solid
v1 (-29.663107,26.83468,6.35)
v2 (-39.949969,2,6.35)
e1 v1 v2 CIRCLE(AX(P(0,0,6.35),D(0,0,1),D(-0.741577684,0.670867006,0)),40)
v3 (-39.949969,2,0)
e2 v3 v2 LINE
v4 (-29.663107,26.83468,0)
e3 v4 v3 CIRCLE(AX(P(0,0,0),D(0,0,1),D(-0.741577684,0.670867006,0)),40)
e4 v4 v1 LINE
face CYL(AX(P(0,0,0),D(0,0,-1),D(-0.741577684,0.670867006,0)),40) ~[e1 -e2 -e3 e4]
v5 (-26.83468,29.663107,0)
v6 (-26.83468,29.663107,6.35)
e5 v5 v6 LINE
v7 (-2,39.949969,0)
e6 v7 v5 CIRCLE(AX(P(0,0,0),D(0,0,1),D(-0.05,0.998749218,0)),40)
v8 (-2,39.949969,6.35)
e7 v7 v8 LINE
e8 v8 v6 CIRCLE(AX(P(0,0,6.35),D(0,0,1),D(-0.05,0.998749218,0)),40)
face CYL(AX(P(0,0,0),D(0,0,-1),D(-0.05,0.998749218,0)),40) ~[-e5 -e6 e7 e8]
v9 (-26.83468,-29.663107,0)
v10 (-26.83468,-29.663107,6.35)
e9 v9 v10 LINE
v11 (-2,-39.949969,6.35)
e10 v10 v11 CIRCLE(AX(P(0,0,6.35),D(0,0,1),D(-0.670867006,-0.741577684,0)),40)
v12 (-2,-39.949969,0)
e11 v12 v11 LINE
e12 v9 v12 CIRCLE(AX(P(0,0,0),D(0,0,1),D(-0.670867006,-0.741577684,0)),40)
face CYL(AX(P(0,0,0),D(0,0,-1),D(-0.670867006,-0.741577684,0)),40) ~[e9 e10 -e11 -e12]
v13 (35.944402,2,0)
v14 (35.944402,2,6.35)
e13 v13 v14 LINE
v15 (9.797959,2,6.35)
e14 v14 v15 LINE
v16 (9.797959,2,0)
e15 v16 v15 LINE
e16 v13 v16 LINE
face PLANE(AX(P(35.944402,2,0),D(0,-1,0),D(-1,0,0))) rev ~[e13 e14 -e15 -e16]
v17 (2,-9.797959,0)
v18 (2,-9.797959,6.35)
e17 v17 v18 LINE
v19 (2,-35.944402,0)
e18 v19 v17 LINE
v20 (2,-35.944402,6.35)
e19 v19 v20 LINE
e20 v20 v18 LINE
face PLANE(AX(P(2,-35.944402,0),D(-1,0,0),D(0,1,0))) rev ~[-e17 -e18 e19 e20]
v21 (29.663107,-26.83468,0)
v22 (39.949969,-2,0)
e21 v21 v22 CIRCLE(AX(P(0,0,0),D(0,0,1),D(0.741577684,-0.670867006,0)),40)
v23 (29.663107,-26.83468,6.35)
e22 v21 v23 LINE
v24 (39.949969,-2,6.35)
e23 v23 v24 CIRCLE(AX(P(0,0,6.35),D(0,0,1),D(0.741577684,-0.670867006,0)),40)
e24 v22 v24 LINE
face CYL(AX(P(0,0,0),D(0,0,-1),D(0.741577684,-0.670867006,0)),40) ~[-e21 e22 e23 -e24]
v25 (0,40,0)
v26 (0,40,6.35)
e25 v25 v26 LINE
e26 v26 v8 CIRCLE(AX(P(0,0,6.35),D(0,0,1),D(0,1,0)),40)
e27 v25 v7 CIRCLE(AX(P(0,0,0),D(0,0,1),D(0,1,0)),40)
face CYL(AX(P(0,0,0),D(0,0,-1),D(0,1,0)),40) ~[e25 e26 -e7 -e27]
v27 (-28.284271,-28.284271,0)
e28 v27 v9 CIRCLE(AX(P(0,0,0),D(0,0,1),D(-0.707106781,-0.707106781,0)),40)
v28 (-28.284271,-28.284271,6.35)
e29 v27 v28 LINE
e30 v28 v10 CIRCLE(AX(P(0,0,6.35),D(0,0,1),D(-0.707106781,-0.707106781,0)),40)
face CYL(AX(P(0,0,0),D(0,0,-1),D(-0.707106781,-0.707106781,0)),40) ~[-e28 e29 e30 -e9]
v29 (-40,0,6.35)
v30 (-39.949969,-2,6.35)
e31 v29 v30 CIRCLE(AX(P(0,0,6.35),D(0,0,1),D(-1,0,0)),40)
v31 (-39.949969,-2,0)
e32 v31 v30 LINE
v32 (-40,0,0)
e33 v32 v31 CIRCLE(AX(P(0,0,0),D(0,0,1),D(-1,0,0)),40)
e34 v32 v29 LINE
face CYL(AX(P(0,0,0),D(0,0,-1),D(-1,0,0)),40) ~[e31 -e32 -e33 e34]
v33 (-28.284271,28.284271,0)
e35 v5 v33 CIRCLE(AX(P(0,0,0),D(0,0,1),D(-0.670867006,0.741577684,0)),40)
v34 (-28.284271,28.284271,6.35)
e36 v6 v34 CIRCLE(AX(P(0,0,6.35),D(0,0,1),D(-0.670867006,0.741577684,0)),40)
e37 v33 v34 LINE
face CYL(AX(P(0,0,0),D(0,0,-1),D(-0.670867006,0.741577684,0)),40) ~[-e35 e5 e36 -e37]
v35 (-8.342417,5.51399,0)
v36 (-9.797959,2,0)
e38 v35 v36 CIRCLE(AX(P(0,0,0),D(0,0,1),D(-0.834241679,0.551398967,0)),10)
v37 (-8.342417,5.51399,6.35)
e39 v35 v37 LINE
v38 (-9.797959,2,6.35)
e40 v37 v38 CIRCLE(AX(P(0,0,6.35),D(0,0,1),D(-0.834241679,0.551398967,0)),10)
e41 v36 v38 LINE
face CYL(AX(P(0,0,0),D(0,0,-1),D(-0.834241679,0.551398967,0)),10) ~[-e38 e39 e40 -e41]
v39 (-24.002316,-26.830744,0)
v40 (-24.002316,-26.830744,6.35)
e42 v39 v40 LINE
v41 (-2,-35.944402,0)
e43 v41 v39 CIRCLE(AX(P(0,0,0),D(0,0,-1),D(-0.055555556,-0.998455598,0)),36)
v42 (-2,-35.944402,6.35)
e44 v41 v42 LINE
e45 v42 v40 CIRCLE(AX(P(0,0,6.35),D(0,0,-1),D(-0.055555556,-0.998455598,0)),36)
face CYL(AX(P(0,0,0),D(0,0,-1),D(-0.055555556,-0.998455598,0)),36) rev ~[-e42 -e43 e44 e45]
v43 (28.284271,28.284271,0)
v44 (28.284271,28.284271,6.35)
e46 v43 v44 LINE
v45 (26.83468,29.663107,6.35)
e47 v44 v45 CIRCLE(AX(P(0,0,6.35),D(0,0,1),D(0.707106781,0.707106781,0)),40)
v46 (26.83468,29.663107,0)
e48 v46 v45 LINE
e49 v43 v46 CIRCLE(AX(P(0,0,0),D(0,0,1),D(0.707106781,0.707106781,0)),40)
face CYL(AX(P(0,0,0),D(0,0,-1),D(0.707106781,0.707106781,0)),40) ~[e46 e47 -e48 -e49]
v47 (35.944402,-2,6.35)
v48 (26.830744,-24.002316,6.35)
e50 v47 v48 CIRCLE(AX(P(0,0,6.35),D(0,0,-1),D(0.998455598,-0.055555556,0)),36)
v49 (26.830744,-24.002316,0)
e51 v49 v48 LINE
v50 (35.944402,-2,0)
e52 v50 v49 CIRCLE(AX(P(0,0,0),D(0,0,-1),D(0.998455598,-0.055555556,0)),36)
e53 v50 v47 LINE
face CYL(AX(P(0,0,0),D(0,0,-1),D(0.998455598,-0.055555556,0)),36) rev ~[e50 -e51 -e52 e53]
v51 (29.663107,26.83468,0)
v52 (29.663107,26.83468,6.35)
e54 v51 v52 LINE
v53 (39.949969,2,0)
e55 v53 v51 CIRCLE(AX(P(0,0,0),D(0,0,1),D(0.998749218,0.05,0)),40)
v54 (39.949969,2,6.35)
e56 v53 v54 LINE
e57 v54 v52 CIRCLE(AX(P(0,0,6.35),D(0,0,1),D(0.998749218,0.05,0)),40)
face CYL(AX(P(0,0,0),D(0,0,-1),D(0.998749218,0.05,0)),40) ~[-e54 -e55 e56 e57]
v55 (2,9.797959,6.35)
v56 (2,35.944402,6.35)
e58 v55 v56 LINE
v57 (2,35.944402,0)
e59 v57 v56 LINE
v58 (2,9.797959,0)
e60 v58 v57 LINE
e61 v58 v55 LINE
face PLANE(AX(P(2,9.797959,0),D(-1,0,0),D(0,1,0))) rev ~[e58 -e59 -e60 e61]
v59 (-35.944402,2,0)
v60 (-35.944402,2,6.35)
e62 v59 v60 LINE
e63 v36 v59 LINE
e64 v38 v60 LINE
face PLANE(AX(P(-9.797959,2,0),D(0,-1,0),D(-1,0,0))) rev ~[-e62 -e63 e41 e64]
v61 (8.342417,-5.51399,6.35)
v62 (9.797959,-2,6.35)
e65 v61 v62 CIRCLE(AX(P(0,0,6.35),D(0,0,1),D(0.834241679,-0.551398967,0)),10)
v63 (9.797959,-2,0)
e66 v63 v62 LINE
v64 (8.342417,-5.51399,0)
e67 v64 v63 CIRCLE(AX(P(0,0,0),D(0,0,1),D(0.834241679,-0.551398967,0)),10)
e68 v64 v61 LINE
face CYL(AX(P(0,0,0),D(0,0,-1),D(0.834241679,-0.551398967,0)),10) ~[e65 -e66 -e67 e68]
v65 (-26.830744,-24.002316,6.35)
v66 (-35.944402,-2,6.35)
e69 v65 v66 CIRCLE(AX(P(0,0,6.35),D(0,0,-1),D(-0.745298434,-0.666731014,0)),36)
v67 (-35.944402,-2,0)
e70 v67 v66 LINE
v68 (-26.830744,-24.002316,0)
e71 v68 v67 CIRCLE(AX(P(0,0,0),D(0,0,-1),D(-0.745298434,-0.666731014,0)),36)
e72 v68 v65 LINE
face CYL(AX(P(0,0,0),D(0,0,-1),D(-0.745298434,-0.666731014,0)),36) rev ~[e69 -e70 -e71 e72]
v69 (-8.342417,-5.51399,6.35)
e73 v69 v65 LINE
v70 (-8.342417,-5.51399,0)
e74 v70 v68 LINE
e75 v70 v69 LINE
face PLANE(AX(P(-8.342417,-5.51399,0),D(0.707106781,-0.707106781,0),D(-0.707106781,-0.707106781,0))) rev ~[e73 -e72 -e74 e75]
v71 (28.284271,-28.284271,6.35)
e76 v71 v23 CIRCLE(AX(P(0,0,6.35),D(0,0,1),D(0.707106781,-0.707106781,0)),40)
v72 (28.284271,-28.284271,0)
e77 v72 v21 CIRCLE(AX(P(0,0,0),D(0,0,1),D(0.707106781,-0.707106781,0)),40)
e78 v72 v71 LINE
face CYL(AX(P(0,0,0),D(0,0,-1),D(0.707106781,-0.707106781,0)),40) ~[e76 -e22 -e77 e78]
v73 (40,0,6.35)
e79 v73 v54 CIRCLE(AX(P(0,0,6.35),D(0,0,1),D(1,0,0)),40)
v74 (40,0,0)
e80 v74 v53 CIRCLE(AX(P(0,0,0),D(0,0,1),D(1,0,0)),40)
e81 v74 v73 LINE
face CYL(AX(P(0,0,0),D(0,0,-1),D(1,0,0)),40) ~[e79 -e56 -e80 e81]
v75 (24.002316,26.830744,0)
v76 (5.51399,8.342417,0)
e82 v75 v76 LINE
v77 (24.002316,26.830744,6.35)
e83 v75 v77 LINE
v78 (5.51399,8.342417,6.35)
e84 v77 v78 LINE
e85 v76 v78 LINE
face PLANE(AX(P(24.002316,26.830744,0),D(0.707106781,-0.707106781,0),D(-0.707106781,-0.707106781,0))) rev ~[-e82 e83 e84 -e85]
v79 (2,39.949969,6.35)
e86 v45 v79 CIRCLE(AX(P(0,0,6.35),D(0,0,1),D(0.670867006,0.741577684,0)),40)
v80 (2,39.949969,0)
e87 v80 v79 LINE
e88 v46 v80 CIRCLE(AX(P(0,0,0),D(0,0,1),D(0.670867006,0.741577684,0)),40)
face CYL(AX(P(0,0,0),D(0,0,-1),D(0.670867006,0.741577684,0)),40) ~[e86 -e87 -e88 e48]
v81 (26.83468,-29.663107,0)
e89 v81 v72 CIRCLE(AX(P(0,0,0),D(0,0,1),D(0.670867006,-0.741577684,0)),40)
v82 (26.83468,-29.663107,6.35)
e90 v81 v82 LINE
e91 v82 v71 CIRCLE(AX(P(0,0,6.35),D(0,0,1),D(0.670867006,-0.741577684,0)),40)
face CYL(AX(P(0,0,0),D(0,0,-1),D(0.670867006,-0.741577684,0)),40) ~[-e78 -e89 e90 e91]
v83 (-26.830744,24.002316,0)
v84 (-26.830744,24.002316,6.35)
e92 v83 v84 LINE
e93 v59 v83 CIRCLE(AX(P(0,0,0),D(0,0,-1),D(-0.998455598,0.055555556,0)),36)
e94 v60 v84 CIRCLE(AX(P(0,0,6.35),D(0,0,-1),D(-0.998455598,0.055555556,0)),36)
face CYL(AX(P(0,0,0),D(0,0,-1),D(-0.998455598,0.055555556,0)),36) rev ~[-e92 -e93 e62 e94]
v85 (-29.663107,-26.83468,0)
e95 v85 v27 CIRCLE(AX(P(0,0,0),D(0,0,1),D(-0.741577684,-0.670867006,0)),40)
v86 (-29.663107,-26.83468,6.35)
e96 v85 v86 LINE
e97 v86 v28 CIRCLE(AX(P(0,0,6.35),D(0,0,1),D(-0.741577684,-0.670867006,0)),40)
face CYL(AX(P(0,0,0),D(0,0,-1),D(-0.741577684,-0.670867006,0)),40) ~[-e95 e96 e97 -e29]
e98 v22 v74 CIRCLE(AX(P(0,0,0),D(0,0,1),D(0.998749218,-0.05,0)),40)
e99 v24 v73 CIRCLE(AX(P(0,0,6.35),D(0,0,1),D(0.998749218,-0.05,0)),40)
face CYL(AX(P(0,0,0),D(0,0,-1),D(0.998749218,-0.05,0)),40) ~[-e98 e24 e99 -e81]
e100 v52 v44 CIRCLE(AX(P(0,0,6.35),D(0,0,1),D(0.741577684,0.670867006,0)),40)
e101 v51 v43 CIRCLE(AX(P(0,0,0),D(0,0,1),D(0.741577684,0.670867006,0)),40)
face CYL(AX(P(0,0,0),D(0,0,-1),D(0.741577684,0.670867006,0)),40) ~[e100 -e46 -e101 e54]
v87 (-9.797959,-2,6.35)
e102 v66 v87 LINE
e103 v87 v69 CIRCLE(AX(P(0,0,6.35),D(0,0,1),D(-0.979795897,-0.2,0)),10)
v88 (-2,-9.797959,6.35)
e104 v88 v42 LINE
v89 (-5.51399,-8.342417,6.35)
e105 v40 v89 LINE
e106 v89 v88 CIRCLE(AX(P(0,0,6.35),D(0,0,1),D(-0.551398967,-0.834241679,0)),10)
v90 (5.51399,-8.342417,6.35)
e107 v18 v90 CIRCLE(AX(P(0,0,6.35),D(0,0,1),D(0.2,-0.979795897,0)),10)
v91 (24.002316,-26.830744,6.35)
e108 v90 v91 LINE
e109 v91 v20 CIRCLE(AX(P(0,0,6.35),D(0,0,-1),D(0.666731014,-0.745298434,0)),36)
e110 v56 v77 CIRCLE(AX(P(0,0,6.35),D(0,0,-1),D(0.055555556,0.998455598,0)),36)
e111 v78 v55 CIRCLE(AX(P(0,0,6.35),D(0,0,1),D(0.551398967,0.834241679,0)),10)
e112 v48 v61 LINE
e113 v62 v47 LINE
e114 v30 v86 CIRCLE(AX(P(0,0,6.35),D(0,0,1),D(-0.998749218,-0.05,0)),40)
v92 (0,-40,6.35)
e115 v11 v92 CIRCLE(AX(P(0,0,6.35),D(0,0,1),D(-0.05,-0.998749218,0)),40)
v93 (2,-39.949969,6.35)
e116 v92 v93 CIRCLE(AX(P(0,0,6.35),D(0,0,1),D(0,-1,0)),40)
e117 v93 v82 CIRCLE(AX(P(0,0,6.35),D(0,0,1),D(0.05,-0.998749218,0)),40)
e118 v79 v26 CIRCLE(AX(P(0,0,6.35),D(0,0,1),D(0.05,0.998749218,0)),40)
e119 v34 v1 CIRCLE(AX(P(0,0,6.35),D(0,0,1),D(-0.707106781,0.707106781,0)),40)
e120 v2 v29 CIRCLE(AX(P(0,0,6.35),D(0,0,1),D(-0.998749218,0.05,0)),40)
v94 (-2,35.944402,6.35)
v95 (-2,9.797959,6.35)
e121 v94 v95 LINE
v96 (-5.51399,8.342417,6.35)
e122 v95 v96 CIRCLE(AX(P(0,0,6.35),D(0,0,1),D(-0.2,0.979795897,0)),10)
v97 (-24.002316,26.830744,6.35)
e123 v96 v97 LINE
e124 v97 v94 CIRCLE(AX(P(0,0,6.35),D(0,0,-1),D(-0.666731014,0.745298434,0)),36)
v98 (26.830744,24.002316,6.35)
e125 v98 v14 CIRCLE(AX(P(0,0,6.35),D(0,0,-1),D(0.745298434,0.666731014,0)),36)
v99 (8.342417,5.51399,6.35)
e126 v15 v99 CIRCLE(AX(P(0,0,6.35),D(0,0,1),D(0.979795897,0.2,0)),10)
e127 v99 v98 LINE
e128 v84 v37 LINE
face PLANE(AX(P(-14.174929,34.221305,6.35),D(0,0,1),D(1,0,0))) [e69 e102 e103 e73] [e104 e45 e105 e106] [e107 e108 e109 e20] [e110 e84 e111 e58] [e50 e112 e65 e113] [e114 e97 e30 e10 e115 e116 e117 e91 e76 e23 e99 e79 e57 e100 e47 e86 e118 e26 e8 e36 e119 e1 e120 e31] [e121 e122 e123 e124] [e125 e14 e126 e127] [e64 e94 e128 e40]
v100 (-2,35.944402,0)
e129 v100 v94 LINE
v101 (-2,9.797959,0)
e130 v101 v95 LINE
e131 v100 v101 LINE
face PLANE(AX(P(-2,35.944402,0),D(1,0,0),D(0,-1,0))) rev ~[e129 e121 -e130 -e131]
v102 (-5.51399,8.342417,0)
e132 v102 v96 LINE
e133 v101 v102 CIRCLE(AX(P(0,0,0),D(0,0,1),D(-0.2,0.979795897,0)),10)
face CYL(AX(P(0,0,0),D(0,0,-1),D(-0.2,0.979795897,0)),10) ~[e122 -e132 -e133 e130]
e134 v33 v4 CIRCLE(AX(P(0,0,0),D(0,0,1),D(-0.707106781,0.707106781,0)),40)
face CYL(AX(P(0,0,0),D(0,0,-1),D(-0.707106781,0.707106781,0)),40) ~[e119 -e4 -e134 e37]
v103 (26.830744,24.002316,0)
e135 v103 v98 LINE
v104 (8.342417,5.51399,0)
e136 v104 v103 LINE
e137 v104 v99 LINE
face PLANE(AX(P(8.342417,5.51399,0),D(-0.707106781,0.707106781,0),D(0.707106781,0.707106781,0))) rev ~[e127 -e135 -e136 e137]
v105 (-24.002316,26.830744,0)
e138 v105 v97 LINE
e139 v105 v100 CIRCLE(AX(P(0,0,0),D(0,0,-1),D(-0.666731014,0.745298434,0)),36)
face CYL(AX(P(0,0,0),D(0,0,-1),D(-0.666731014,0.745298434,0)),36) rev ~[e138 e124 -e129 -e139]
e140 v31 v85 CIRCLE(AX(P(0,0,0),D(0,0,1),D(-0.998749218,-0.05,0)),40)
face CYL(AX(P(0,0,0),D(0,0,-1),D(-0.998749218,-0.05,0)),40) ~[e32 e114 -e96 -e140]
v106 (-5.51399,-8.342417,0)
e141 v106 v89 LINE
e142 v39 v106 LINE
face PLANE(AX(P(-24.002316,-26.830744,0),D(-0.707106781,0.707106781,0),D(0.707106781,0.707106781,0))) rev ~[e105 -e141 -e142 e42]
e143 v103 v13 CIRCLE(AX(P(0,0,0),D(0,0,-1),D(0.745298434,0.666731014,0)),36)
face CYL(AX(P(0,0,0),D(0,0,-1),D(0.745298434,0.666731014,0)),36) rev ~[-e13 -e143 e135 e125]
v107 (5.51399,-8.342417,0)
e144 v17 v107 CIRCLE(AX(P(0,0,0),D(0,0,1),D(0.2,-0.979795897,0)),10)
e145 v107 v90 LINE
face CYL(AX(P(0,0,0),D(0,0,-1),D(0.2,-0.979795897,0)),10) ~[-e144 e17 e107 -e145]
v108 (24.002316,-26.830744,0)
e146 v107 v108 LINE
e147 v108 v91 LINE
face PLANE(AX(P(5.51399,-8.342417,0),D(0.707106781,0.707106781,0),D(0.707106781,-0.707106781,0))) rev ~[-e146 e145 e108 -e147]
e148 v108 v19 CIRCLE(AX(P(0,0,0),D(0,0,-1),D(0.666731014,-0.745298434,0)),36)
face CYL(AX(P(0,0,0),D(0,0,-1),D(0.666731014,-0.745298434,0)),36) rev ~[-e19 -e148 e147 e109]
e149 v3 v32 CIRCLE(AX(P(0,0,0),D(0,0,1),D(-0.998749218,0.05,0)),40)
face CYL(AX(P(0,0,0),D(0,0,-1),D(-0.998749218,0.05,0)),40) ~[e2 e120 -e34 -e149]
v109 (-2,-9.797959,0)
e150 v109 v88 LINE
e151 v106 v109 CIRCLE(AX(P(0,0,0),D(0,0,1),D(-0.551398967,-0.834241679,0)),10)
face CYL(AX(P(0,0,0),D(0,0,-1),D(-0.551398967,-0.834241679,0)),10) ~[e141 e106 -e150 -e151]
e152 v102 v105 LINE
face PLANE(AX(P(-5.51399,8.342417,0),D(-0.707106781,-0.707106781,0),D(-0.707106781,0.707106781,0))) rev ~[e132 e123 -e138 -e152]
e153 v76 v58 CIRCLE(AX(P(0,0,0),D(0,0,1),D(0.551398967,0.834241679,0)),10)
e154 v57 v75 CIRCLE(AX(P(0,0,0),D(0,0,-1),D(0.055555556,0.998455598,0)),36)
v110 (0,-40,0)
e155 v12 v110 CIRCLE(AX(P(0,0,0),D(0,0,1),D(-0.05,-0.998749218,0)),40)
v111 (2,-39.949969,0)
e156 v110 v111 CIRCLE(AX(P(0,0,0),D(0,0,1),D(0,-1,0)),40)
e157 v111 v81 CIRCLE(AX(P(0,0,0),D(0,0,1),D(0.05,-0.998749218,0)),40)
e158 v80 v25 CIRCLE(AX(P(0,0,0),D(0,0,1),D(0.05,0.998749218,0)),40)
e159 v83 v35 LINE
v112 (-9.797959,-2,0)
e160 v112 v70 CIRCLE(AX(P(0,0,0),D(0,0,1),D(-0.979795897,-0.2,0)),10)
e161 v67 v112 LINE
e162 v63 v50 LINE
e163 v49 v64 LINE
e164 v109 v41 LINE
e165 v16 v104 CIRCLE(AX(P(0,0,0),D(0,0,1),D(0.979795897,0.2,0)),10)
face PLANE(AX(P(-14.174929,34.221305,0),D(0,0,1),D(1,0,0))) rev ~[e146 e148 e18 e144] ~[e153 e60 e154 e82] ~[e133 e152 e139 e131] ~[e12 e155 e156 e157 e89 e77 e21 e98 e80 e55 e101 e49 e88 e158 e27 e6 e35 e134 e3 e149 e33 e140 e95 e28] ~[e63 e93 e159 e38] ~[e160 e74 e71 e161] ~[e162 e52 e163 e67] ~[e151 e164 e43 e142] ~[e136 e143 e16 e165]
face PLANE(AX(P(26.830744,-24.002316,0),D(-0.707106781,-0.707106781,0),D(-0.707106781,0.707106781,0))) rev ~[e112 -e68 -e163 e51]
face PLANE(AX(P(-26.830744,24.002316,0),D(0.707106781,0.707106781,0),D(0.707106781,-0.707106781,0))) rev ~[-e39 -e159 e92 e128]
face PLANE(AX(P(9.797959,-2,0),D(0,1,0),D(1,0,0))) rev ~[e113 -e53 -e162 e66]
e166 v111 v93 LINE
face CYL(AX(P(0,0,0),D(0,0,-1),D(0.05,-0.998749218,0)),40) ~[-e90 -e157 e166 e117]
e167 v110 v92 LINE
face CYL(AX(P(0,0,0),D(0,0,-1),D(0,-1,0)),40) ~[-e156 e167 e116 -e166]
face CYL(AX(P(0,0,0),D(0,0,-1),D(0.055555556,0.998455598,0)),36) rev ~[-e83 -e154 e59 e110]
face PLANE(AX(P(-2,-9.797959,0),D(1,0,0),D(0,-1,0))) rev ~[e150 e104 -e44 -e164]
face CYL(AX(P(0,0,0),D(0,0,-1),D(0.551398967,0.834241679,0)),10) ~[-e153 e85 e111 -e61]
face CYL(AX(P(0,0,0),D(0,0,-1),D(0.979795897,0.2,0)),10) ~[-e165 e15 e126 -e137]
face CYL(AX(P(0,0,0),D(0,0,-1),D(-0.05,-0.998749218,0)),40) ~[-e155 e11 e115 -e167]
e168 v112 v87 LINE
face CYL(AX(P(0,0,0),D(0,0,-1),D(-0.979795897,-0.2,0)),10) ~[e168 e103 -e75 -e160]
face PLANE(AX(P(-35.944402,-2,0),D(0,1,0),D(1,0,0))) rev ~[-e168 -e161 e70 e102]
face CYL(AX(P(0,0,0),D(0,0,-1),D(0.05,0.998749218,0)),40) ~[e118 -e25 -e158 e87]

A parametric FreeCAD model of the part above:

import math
import FreeCAD as App
import Part
import Sketcher

doc = App.newDocument("Part")
params = doc.addObject("Spreadsheet::Sheet", "Params")
for row, (alias, value) in enumerate([
    ("sketch1_radius", "40 mm"),
    ("sketch1_radius2", "10 mm"),
    ("sketch1_radius3", "36 mm"),
    ("pad1_length", "6.35 mm"),
], start=1):
    params.set(f"A{row}", alias)
    params.set(f"B{row}", "=" + value)
    params.setAlias(f"B{row}", alias)

body = doc.addObject("PartDesign::Body", "Body")

sketch1 = body.newObject("Sketcher::SketchObject", "Sketch")
sketch1.AttachmentSupport = (doc.getObject("XY_Plane"), [""])
sketch1.MapMode = "FlatFace"
sketch1.addGeometry([
    Part.ArcOfCircle(Part.Circle(App.Vector(0, 0, 0), App.Vector(0, 0, 1), 40), math.radians(138), math.radians(177)),
    Part.ArcOfCircle(Part.Circle(App.Vector(0, 0, 0), App.Vector(0, 0, 1), 40), math.radians(177.13), math.radians(180)),
    Part.ArcOfCircle(Part.Circle(App.Vector(0, 0, 0), App.Vector(0, 0, 1), 40), math.radians(-180), math.radians(-177.13)),
    Part.ArcOfCircle(Part.Circle(App.Vector(0, 0, 0), App.Vector(0, 0, 1), 40), math.radians(-177), math.radians(-138)),
    Part.ArcOfCircle(Part.Circle(App.Vector(0, 0, 0), App.Vector(0, 0, 1), 40), math.radians(-137.87), math.radians(-135)),
    Part.ArcOfCircle(Part.Circle(App.Vector(0, 0, 0), App.Vector(0, 0, 1), 40), math.radians(-135), math.radians(-132.13)),
    Part.ArcOfCircle(Part.Circle(App.Vector(0, 0, 0), App.Vector(0, 0, 1), 40), math.radians(-132), math.radians(-93)),
    Part.ArcOfCircle(Part.Circle(App.Vector(0, 0, 0), App.Vector(0, 0, 1), 40), math.radians(-92.87), math.radians(-90)),
    Part.ArcOfCircle(Part.Circle(App.Vector(0, 0, 0), App.Vector(0, 0, 1), 40), math.radians(-90), math.radians(-87.13)),
    Part.ArcOfCircle(Part.Circle(App.Vector(0, 0, 0), App.Vector(0, 0, 1), 40), math.radians(-87), math.radians(-48)),
    Part.ArcOfCircle(Part.Circle(App.Vector(0, 0, 0), App.Vector(0, 0, 1), 40), math.radians(-47.87), math.radians(-45)),
    Part.ArcOfCircle(Part.Circle(App.Vector(0, 0, 0), App.Vector(0, 0, 1), 40), math.radians(-45), math.radians(-42.13)),
    Part.ArcOfCircle(Part.Circle(App.Vector(0, 0, 0), App.Vector(0, 0, 1), 40), math.radians(-42), math.radians(-3)),
    Part.ArcOfCircle(Part.Circle(App.Vector(0, 0, 0), App.Vector(0, 0, 1), 40), math.radians(-2.87), math.radians(0)),
    Part.ArcOfCircle(Part.Circle(App.Vector(0, 0, 0), App.Vector(0, 0, 1), 40), math.radians(0), math.radians(2.87)),
    Part.ArcOfCircle(Part.Circle(App.Vector(0, 0, 0), App.Vector(0, 0, 1), 40), math.radians(3), math.radians(42)),
    Part.ArcOfCircle(Part.Circle(App.Vector(0, 0, 0), App.Vector(0, 0, 1), 40), math.radians(42.13), math.radians(45)),
    Part.ArcOfCircle(Part.Circle(App.Vector(0, 0, 0), App.Vector(0, 0, 1), 40), math.radians(45), math.radians(47.87)),
    Part.ArcOfCircle(Part.Circle(App.Vector(0, 0, 0), App.Vector(0, 0, 1), 40), math.radians(48), math.radians(87)),
    Part.ArcOfCircle(Part.Circle(App.Vector(0, 0, 0), App.Vector(0, 0, 1), 40), math.radians(87.13), math.radians(90)),
    Part.ArcOfCircle(Part.Circle(App.Vector(0, 0, 0), App.Vector(0, 0, 1), 40), math.radians(90), math.radians(92.87)),
    Part.ArcOfCircle(Part.Circle(App.Vector(0, 0, 0), App.Vector(0, 0, 1), 40), math.radians(93), math.radians(132)),
    Part.ArcOfCircle(Part.Circle(App.Vector(0, 0, 0), App.Vector(0, 0, 1), 40), math.radians(132.13), math.radians(135)),
    Part.ArcOfCircle(Part.Circle(App.Vector(0, 0, 0), App.Vector(0, 0, 1), 40), math.radians(135), math.radians(137.87)),
    Part.LineSegment(App.Vector(-24, -26.8, 0), App.Vector(-5.5, -8.3, 0)),
    Part.ArcOfCircle(Part.Circle(App.Vector(0, 0, 0), App.Vector(0, 0, 1), 10), math.radians(-123), math.radians(-102)),
    Part.LineSegment(App.Vector(-2, -9.8, 0), App.Vector(-2, -35.9, 0)),
    Part.ArcOfCircle(Part.Circle(App.Vector(0, 0, 0), App.Vector(0, 0, 1), 36), math.radians(-132), math.radians(-93)),
    Part.LineSegment(App.Vector(-35.9, -2, 0), App.Vector(-9.8, -2, 0)),
    Part.ArcOfCircle(Part.Circle(App.Vector(0, 0, 0), App.Vector(0, 0, 1), 10), math.radians(-168), math.radians(-147)),
    Part.LineSegment(App.Vector(-8.3, -5.5, 0), App.Vector(-26.8, -24, 0)),
    Part.ArcOfCircle(Part.Circle(App.Vector(0, 0, 0), App.Vector(0, 0, 1), 36), math.radians(-177), math.radians(-138)),
    Part.LineSegment(App.Vector(2, -35.9, 0), App.Vector(2, -9.8, 0)),
    Part.ArcOfCircle(Part.Circle(App.Vector(0, 0, 0), App.Vector(0, 0, 1), 10), math.radians(-78), math.radians(-57)),
    Part.LineSegment(App.Vector(5.5, -8.3, 0), App.Vector(24, -26.8, 0)),
    Part.ArcOfCircle(Part.Circle(App.Vector(0, 0, 0), App.Vector(0, 0, 1), 36), math.radians(-87), math.radians(-48)),
    Part.LineSegment(App.Vector(26.8, -24, 0), App.Vector(8.3, -5.5, 0)),
    Part.ArcOfCircle(Part.Circle(App.Vector(0, 0, 0), App.Vector(0, 0, 1), 10), math.radians(-33), math.radians(-12)),
    Part.LineSegment(App.Vector(9.8, -2, 0), App.Vector(35.9, -2, 0)),
    Part.ArcOfCircle(Part.Circle(App.Vector(0, 0, 0), App.Vector(0, 0, 1), 36), math.radians(-42), math.radians(-3)),
    Part.LineSegment(App.Vector(-26.8, 24, 0), App.Vector(-8.3, 5.5, 0)),
    Part.ArcOfCircle(Part.Circle(App.Vector(0, 0, 0), App.Vector(0, 0, 1), 10), math.radians(147), math.radians(168)),
    Part.LineSegment(App.Vector(-9.8, 2, 0), App.Vector(-35.9, 2, 0)),
    Part.ArcOfCircle(Part.Circle(App.Vector(0, 0, 0), App.Vector(0, 0, 1), 36), math.radians(138), math.radians(177)),
    Part.ArcOfCircle(Part.Circle(App.Vector(0, 0, 0), App.Vector(0, 0, 1), 10), math.radians(102), math.radians(123)),
    Part.LineSegment(App.Vector(-5.5, 8.3, 0), App.Vector(-24, 26.8, 0)),
    Part.ArcOfCircle(Part.Circle(App.Vector(0, 0, 0), App.Vector(0, 0, 1), 36), math.radians(93), math.radians(132)),
    Part.LineSegment(App.Vector(-2, 35.9, 0), App.Vector(-2, 9.8, 0)),
    Part.ArcOfCircle(Part.Circle(App.Vector(0, 0, 0), App.Vector(0, 0, 1), 10), math.radians(12), math.radians(33)),
    Part.LineSegment(App.Vector(8.3, 5.5, 0), App.Vector(26.8, 24, 0)),
    Part.ArcOfCircle(Part.Circle(App.Vector(0, 0, 0), App.Vector(0, 0, 1), 36), math.radians(3), math.radians(42)),
    Part.LineSegment(App.Vector(35.9, 2, 0), App.Vector(9.8, 2, 0)),
    Part.ArcOfCircle(Part.Circle(App.Vector(0, 0, 0), App.Vector(0, 0, 1), 10), math.radians(57), math.radians(78)),
    Part.LineSegment(App.Vector(2, 9.8, 0), App.Vector(2, 35.9, 0)),
    Part.ArcOfCircle(Part.Circle(App.Vector(0, 0, 0), App.Vector(0, 0, 1), 36), math.radians(48), math.radians(87)),
    Part.LineSegment(App.Vector(24, 26.8, 0), App.Vector(5.5, 8.3, 0)),
], False)
sketch1.addConstraint([
    Sketcher.Constraint("Tangent", 0, 2, 1, 1),
    Sketcher.Constraint("Tangent", 1, 2, 2, 1),
    Sketcher.Constraint("Tangent", 2, 2, 3, 1),
    Sketcher.Constraint("Tangent", 3, 2, 4, 1),
    Sketcher.Constraint("Tangent", 4, 2, 5, 1),
    Sketcher.Constraint("Tangent", 5, 2, 6, 1),
    Sketcher.Constraint("Tangent", 6, 2, 7, 1),
    Sketcher.Constraint("Tangent", 7, 2, 8, 1),
    Sketcher.Constraint("Tangent", 8, 2, 9, 1),
    Sketcher.Constraint("Tangent", 9, 2, 10, 1),
    Sketcher.Constraint("Tangent", 10, 2, 11, 1),
    Sketcher.Constraint("Tangent", 11, 2, 12, 1),
    Sketcher.Constraint("Tangent", 12, 2, 13, 1),
    Sketcher.Constraint("Tangent", 13, 2, 14, 1),
    Sketcher.Constraint("Tangent", 14, 2, 15, 1),
    Sketcher.Constraint("Tangent", 15, 2, 16, 1),
    Sketcher.Constraint("Tangent", 16, 2, 17, 1),
    Sketcher.Constraint("Tangent", 17, 2, 18, 1),
    Sketcher.Constraint("Tangent", 18, 2, 19, 1),
    Sketcher.Constraint("Tangent", 19, 2, 20, 1),
    Sketcher.Constraint("Tangent", 20, 2, 21, 1),
    Sketcher.Constraint("Tangent", 21, 2, 22, 1),
    Sketcher.Constraint("Tangent", 22, 2, 23, 1),
    Sketcher.Constraint("Tangent", 23, 2, 0, 1),
    Sketcher.Constraint("Coincident", 24, 2, 25, 1),
    Sketcher.Constraint("Coincident", 25, 2, 26, 1),
    Sketcher.Constraint("Coincident", 26, 2, 27, 2),
    Sketcher.Constraint("Coincident", 27, 1, 24, 1),
    Sketcher.Constraint("Coincident", 28, 2, 29, 1),
    Sketcher.Constraint("Coincident", 29, 2, 30, 1),
    Sketcher.Constraint("Coincident", 30, 2, 31, 2),
    Sketcher.Constraint("Coincident", 31, 1, 28, 1),
    Sketcher.Constraint("Coincident", 32, 2, 33, 1),
    Sketcher.Constraint("Coincident", 33, 2, 34, 1),
    Sketcher.Constraint("Coincident", 34, 2, 35, 2),
    Sketcher.Constraint("Coincident", 35, 1, 32, 1),
    Sketcher.Constraint("Coincident", 36, 2, 37, 1),
    Sketcher.Constraint("Coincident", 37, 2, 38, 1),
    Sketcher.Constraint("Coincident", 38, 2, 39, 2),
    Sketcher.Constraint("Coincident", 39, 1, 36, 1),
    Sketcher.Constraint("Coincident", 40, 2, 41, 1),
    Sketcher.Constraint("Coincident", 41, 2, 42, 1),
    Sketcher.Constraint("Coincident", 42, 2, 43, 2),
    Sketcher.Constraint("Coincident", 43, 1, 40, 1),
    Sketcher.Constraint("Coincident", 44, 2, 45, 1),
    Sketcher.Constraint("Coincident", 45, 2, 46, 2),
    Sketcher.Constraint("Coincident", 46, 1, 47, 1),
    Sketcher.Constraint("Coincident", 47, 2, 44, 1),
    Sketcher.Constraint("Coincident", 48, 2, 49, 1),
    Sketcher.Constraint("Coincident", 49, 2, 50, 2),
    Sketcher.Constraint("Coincident", 50, 1, 51, 1),
    Sketcher.Constraint("Coincident", 51, 2, 48, 1),
    Sketcher.Constraint("Coincident", 52, 2, 53, 1),
    Sketcher.Constraint("Coincident", 53, 2, 54, 2),
    Sketcher.Constraint("Coincident", 54, 1, 55, 1),
    Sketcher.Constraint("Coincident", 55, 2, 52, 1),
    Sketcher.Constraint("Vertical", 26),
    Sketcher.Constraint("Horizontal", 28),
    Sketcher.Constraint("Vertical", 32),
    Sketcher.Constraint("Horizontal", 38),
    Sketcher.Constraint("Horizontal", 42),
    Sketcher.Constraint("Vertical", 47),
    Sketcher.Constraint("Horizontal", 51),
    Sketcher.Constraint("Vertical", 53),
    Sketcher.Constraint("Coincident", 0, 3, -1, 1),
    Sketcher.Constraint("Coincident", 2, 3, -1, 1),
    Sketcher.Constraint("Coincident", 4, 3, -1, 1),
    Sketcher.Constraint("Coincident", 6, 3, -1, 1),
    Sketcher.Constraint("Coincident", 8, 3, -1, 1),
    Sketcher.Constraint("Coincident", 10, 3, -1, 1),
    Sketcher.Constraint("Coincident", 12, 3, -1, 1),
    Sketcher.Constraint("Coincident", 14, 3, -1, 1),
    Sketcher.Constraint("Coincident", 16, 3, -1, 1),
    Sketcher.Constraint("Coincident", 18, 3, -1, 1),
    Sketcher.Constraint("Coincident", 20, 3, -1, 1),
    Sketcher.Constraint("Coincident", 25, 3, -1, 1),
    Sketcher.Constraint("Coincident", 27, 3, -1, 1),
    Sketcher.Constraint("Coincident", 29, 3, -1, 1),
    Sketcher.Constraint("Coincident", 31, 3, -1, 1),
    Sketcher.Constraint("Coincident", 33, 3, -1, 1),
    Sketcher.Constraint("Coincident", 35, 3, -1, 1),
    Sketcher.Constraint("Coincident", 37, 3, -1, 1),
    Sketcher.Constraint("Coincident", 39, 3, -1, 1),
    Sketcher.Constraint("Coincident", 41, 3, -1, 1),
    Sketcher.Constraint("Coincident", 43, 3, -1, 1),
    Sketcher.Constraint("Coincident", 44, 3, -1, 1),
    Sketcher.Constraint("Coincident", 46, 3, -1, 1),
    Sketcher.Constraint("Coincident", 48, 3, -1, 1),
    Sketcher.Constraint("Coincident", 50, 3, -1, 1),
    Sketcher.Constraint("Coincident", 52, 3, -1, 1),
    Sketcher.Constraint("Coincident", 54, 3, -1, 1),
    Sketcher.Constraint("Equal", 20, 21),
    Sketcher.Constraint("Equal", 25, 29),
    Sketcher.Constraint("Equal", 27, 31),
    Sketcher.Constraint("Equal", 29, 33),
    Sketcher.Constraint("Equal", 31, 35),
    Sketcher.Constraint("Equal", 33, 37),
    Sketcher.Constraint("Equal", 35, 39),
    Sketcher.Constraint("Equal", 37, 41),
    Sketcher.Constraint("Equal", 39, 43),
    Sketcher.Constraint("Equal", 41, 44),
    Sketcher.Constraint("Equal", 43, 46),
    Sketcher.Constraint("Equal", 44, 48),
    Sketcher.Constraint("Equal", 46, 50),
    Sketcher.Constraint("Equal", 48, 52),
    Sketcher.Constraint("Equal", 50, 54),
    Sketcher.Constraint("PointOnObject", 1, 2, -1),
    Sketcher.Constraint("PointOnObject", 7, 2, -2),
    Sketcher.Constraint("PointOnObject", 13, 2, -1),
    Sketcher.Constraint("PointOnObject", 19, 2, -2),
    Sketcher.Constraint("Parallel", 24, 30),
    Sketcher.Constraint("Perpendicular", 30, 34),
    Sketcher.Constraint("Parallel", 34, 36),
    Sketcher.Constraint("Parallel", 36, 40),
    Sketcher.Constraint("Parallel", 40, 45),
    Sketcher.Constraint("Perpendicular", 45, 49),
    Sketcher.Constraint("Parallel", 49, 55),
    Sketcher.Constraint("Horizontal", 6, 2, 8, 2),
    Sketcher.Constraint("Horizontal", 5, 2, 9, 2),
    Sketcher.Constraint("Horizontal", 4, 2, 10, 2),
    Sketcher.Constraint("Horizontal", 3, 2, 11, 2),
    Sketcher.Constraint("Horizontal", 2, 2, 12, 2),
    Sketcher.Constraint("Horizontal", 0, 2, 14, 2),
    Sketcher.Constraint("Horizontal", 18, 2, 20, 2),
    Sketcher.Constraint("Horizontal", 17, 2, 21, 2),
    Sketcher.Constraint("Horizontal", 16, 2, 22, 2),
    Sketcher.Constraint("Horizontal", 15, 2, 23, 2),
    Sketcher.Constraint("Horizontal", 12, 2, 28, 2),
    Sketcher.Constraint("Horizontal", 25, 2, 32, 2),
    Sketcher.Constraint("Horizontal", 24, 2, 33, 2),
    Sketcher.Constraint("Horizontal", 27, 1, 34, 2),
    Sketcher.Constraint("Horizontal", 29, 2, 36, 2),
    Sketcher.Constraint("Horizontal", 31, 1, 37, 2),
    Sketcher.Constraint("Horizontal", 14, 2, 41, 2),
    Sketcher.Constraint("Horizontal", 40, 2, 48, 2),
    Sketcher.Constraint("Horizontal", 42, 2, 50, 1),
    Sketcher.Constraint("Horizontal", 47, 2, 52, 2),
    Sketcher.Constraint("Horizontal", 45, 2, 54, 1),
    Sketcher.Constraint("Vertical", 0, 2, 2, 2),
    Sketcher.Constraint("Vertical", 11, 2, 15, 2),
    Sketcher.Constraint("Vertical", 10, 2, 16, 2),
    Sketcher.Constraint("Vertical", 9, 2, 17, 2),
    Sketcher.Constraint("Vertical", 8, 2, 18, 2),
    Sketcher.Constraint("Vertical", 20, 2, 25, 2),
    Sketcher.Constraint("Vertical", 29, 2, 40, 2),
    Sketcher.Constraint("Vertical", 24, 2, 44, 2),
    Sketcher.Constraint("Vertical", 26, 2, 46, 1),
    Sketcher.Constraint("Equal", 51, 26),
    Sketcher.Constraint("Equal", 24, 30),
    Sketcher.Constraint("Radius", 0, 40.0),
    Sketcher.Constraint("Radius", 25, 10.0),
    Sketcher.Constraint("Radius", 27, 36.0),
    Sketcher.Constraint("DistanceY", -1, 1, 0, 2, 2.0),
    Sketcher.Constraint("DistanceY", 3, 2, -1, 1, 26.83468),
    Sketcher.Constraint("DistanceX", 4, 2, -1, 1, 28.284271),
    Sketcher.Constraint("DistanceX", 5, 2, -1, 1, 26.83468),
    Sketcher.Constraint("DistanceX", 24, 2, -1, 1, 5.51399),
])
sketch1.setExpression("Constraints[149]", "Params.sketch1_radius")
sketch1.setExpression("Constraints[150]", "Params.sketch1_radius2")
sketch1.setExpression("Constraints[151]", "Params.sketch1_radius3")
pad1 = body.newObject("PartDesign::Pad", "Pad")
pad1.Profile = sketch1
pad1.setExpression("Length", "Params.pad1_length")

doc.recompute()
